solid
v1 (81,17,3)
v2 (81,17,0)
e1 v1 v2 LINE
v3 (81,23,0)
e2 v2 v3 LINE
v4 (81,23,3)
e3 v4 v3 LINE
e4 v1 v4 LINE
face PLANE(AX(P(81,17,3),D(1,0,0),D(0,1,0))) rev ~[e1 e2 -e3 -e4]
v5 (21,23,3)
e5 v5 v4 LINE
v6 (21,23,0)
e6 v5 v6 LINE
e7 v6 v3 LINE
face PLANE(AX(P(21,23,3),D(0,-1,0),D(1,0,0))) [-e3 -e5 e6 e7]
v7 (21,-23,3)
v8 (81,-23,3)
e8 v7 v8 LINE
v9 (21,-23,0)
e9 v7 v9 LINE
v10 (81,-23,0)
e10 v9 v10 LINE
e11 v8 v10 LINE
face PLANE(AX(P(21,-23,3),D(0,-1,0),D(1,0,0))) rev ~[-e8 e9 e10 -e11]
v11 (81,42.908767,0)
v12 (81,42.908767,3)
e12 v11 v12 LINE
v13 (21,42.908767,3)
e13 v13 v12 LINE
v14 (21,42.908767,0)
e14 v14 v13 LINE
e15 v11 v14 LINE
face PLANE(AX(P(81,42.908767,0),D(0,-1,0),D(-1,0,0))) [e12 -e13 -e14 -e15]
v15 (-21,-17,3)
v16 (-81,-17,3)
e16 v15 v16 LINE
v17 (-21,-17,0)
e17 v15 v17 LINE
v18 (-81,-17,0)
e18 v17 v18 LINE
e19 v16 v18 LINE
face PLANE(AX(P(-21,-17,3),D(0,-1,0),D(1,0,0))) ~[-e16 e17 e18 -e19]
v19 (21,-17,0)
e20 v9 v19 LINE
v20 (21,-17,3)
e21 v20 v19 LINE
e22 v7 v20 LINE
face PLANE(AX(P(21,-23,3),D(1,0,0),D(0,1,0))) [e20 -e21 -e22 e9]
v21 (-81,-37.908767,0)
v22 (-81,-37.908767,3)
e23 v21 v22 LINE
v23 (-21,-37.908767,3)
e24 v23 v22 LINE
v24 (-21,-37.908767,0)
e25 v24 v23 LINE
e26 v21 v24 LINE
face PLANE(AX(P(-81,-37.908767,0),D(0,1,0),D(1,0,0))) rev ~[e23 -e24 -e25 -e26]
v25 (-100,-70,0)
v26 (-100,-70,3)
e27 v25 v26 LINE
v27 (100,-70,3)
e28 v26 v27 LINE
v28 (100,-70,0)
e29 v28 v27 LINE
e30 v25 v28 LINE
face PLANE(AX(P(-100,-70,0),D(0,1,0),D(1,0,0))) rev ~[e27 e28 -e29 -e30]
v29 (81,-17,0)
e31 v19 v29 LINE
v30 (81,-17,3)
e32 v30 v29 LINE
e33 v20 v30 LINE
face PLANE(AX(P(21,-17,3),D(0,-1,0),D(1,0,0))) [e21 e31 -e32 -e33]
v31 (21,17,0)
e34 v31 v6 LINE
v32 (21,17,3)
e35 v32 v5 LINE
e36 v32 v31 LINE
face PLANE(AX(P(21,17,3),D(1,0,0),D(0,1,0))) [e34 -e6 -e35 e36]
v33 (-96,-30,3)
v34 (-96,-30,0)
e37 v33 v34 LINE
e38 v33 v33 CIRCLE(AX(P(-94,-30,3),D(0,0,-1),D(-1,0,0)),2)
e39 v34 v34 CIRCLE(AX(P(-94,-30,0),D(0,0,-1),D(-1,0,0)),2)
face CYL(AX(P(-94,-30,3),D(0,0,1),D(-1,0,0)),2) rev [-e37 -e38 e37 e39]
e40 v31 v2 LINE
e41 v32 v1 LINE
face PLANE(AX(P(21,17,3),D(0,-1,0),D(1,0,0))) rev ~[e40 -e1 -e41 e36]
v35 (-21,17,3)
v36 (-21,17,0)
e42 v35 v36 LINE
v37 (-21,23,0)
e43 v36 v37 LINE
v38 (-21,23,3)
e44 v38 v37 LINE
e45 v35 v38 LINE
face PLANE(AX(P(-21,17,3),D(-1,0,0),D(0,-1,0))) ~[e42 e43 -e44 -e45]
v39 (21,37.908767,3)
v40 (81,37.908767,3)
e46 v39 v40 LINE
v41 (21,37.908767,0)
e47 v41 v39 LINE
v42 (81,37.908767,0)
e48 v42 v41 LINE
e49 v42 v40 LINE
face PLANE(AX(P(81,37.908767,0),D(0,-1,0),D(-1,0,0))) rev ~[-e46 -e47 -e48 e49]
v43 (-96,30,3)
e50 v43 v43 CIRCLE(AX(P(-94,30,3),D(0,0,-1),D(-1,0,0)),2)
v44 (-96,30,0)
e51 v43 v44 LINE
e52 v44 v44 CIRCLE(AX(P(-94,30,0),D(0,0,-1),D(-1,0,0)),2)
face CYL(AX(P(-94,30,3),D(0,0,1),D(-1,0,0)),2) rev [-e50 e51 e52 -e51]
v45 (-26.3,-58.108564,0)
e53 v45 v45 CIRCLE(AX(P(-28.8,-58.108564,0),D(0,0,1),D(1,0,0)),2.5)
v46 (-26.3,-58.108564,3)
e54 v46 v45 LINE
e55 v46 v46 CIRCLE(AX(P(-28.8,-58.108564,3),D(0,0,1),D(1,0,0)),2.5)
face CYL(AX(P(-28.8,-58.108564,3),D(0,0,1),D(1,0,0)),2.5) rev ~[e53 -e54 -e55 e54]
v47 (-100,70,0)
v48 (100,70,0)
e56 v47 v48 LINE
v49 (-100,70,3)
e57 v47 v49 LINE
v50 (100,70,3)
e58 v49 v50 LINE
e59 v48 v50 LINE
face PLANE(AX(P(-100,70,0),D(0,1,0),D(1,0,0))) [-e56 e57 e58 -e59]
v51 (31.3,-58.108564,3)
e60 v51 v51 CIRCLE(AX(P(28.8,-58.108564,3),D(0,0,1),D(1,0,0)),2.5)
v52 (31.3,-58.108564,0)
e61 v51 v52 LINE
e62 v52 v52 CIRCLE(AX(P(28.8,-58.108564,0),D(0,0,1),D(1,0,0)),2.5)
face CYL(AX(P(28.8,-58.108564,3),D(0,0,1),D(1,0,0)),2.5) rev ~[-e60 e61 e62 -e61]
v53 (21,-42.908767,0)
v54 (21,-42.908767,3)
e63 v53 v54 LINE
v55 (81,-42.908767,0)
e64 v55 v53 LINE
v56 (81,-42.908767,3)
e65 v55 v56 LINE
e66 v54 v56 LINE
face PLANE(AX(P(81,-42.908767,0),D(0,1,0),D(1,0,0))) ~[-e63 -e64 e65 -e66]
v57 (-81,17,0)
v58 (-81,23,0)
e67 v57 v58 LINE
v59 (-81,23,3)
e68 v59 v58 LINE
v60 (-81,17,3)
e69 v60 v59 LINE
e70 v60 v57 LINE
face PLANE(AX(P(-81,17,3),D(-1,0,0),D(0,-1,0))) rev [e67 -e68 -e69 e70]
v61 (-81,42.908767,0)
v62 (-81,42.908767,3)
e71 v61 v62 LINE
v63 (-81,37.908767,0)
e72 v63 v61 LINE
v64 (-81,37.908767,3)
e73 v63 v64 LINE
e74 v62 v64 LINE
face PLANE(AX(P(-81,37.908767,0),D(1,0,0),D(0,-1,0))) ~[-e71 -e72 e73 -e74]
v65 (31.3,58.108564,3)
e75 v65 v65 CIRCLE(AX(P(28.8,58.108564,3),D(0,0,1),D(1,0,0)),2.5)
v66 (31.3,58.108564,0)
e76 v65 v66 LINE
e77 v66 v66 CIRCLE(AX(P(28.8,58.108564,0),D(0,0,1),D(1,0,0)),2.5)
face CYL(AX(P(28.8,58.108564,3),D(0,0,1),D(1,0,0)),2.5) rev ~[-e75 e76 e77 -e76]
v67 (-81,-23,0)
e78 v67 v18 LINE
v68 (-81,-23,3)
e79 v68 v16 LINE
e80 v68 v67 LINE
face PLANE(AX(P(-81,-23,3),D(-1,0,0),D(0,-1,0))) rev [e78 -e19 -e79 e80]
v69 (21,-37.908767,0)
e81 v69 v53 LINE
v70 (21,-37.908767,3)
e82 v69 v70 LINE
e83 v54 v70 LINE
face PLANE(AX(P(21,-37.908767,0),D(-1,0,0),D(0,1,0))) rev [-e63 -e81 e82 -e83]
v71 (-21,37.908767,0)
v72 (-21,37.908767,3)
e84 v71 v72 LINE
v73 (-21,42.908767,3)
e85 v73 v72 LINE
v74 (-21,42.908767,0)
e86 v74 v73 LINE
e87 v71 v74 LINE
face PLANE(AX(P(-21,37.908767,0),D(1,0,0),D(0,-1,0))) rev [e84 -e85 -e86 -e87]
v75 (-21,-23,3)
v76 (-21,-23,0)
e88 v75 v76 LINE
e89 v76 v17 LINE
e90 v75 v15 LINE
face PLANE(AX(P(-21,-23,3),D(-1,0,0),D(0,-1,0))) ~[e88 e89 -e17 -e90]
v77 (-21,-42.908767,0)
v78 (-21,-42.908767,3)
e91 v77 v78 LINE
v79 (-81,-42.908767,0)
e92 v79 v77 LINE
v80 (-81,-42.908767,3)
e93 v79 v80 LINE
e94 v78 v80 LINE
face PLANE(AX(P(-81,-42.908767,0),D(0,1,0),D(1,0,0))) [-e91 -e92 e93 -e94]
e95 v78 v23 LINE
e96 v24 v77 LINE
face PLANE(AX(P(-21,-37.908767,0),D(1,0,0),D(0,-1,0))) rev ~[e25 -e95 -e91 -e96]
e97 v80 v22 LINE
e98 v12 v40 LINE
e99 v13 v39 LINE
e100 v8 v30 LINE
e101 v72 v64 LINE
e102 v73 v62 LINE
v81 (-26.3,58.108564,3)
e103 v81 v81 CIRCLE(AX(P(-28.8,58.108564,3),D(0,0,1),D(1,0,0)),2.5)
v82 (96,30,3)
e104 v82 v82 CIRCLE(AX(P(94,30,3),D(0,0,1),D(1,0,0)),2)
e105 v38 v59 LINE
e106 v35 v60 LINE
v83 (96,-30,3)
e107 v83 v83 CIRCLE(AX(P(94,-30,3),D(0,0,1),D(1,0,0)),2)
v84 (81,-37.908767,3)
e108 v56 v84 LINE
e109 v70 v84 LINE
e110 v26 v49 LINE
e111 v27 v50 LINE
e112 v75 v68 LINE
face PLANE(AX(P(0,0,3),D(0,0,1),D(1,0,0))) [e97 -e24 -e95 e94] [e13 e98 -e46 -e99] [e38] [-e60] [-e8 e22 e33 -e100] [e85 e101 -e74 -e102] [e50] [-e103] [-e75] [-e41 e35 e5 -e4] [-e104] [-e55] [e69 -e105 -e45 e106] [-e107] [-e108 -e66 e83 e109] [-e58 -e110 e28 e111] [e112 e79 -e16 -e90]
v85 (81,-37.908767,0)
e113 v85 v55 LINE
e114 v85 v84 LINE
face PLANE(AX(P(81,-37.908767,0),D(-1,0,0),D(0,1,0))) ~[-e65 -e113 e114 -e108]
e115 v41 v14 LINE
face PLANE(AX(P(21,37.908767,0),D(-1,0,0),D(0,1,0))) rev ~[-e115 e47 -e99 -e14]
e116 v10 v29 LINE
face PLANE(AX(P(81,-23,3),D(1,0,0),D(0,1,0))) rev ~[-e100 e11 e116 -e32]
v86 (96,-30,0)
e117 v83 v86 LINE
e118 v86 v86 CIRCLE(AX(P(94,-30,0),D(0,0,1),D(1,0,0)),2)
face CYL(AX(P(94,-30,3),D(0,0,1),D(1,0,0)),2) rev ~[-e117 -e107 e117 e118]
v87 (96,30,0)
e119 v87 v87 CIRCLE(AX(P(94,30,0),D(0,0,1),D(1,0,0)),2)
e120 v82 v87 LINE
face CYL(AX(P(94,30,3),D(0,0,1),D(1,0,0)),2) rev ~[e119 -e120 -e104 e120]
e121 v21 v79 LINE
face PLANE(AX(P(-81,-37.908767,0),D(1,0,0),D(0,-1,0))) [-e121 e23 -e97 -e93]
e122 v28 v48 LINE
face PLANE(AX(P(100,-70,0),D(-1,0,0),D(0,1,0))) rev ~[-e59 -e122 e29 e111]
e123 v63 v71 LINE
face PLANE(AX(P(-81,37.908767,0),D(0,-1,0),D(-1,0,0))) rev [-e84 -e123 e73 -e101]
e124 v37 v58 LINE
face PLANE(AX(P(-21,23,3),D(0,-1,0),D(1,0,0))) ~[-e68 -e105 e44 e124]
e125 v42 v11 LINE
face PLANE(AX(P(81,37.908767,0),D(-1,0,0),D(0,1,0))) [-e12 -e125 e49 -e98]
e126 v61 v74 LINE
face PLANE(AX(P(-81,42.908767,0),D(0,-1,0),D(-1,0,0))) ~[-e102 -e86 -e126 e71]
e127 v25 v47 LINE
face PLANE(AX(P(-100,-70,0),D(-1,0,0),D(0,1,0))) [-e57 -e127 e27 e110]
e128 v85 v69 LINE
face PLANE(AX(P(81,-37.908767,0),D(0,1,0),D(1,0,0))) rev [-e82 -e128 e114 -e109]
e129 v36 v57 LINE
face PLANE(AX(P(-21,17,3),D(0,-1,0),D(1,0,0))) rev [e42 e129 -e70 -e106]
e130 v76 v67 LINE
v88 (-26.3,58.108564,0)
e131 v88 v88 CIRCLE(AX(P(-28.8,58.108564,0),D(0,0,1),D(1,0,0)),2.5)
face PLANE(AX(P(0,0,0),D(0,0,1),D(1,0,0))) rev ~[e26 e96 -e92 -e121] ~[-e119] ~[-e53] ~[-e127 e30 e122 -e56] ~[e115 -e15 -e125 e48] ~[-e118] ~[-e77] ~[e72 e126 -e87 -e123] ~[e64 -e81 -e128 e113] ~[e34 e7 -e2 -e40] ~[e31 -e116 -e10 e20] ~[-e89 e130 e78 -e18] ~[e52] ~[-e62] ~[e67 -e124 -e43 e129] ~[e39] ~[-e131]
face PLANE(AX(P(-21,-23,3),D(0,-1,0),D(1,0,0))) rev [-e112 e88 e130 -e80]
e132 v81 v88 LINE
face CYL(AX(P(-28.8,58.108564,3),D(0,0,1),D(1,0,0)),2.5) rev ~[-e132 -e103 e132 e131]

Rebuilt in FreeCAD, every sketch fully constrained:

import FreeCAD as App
import Part
import Sketcher
Q = App.Units.Quantity

doc = App.newDocument("Part")
body = doc.addObject("PartDesign::Body", "Body")

sketch1 = body.newObject("Sketcher::SketchObject", "Sketch")
sketch1.AttachmentSupport = (doc.getObject("XY_Plane"), [""])
sketch1.MapMode = "FlatFace"
sketch1.addGeometry([
    Part.LineSegment(App.Vector(-100, 70, 0), App.Vector(-100, -70, 0)),
    Part.LineSegment(App.Vector(-100, -70, 0), App.Vector(100, -70, 0)),
    Part.LineSegment(App.Vector(100, -70, 0), App.Vector(100, 70, 0)),
    Part.LineSegment(App.Vector(100, 70, 0), App.Vector(-100, 70, 0)),
], False)
sketch1.addConstraint([
    Sketcher.Constraint("Coincident", 0, 2, 1, 1),
    Sketcher.Constraint("Coincident", 1, 2, 2, 1),
    Sketcher.Constraint("Coincident", 2, 2, 3, 1),
    Sketcher.Constraint("Coincident", 3, 2, 0, 1),
    Sketcher.Constraint("Vertical", 0),
    Sketcher.Constraint("Horizontal", 1),
    Sketcher.Constraint("Vertical", 2),
    Sketcher.Constraint("Horizontal", 3),
    Sketcher.Constraint("Symmetric", 0, 2, 2, 2, -1, 1),
    Sketcher.Constraint("DistanceX", 1, 1, 1, 2, Q("200 mm")),
    Sketcher.Constraint("DistanceY", 0, 2, 0, 1, Q("140 mm")),
])
pad1 = body.newObject("PartDesign::Pad", "Pad")
pad1.Profile = sketch1
pad1.Length = 3

sketch2 = body.newObject("Sketcher::SketchObject", "Sketch001")
sketch2.AttachmentSupport = (doc.getObject("XY_Plane"), [""])
sketch2.MapMode = "FlatFace"
sketch2.AttachmentOffset = App.Placement(App.Vector(0, 0, 3), App.Rotation())
sketch2.addGeometry([
    Part.Circle(App.Vector(94, 30, 0), App.Vector(0, 0, 1), 2),
    Part.Circle(App.Vector(94, -30, 0), App.Vector(0, 0, 1), 2),
], False)
sketch2.addConstraint([
    Sketcher.Constraint("Equal", 0, 1),
    Sketcher.Constraint("Symmetric", 0, 3, 1, 3, -1),
    Sketcher.Constraint("Diameter", 0, Q("4 mm")),
    Sketcher.Constraint("DistanceX", -1, 1, 0, 3, Q("94 mm")),
    Sketcher.Constraint("DistanceY", -1, 1, 0, 3, Q("30 mm")),
])
pocket1 = body.newObject("PartDesign::Pocket", "Pocket")
pocket1.Profile = sketch2
pocket1.Length = 3

sketch3 = body.newObject("Sketcher::SketchObject", "Sketch002")
sketch3.AttachmentSupport = (doc.getObject("XY_Plane"), [""])
sketch3.MapMode = "FlatFace"
sketch3.AttachmentOffset = App.Placement(App.Vector(0, 0, 3), App.Rotation())
sketch3.addGeometry([
    Part.LineSegment(App.Vector(21, 23, 0), App.Vector(21, 17, 0)),
    Part.LineSegment(App.Vector(21, 17, 0), App.Vector(81, 17, 0)),
    Part.LineSegment(App.Vector(81, 17, 0), App.Vector(81, 23, 0)),
    Part.LineSegment(App.Vector(81, 23, 0), App.Vector(21, 23, 0)),
    Part.LineSegment(App.Vector(21, -17, 0), App.Vector(21, -23, 0)),
    Part.LineSegment(App.Vector(21, -23, 0), App.Vector(81, -23, 0)),
    Part.LineSegment(App.Vector(81, -23, 0), App.Vector(81, -17, 0)),
    Part.LineSegment(App.Vector(81, -17, 0), App.Vector(21, -17, 0)),
], False)
sketch3.addConstraint([
    Sketcher.Constraint("Coincident", 0, 2, 1, 1),
    Sketcher.Constraint("Coincident", 1, 2, 2, 1),
    Sketcher.Constraint("Coincident", 2, 2, 3, 1),
    Sketcher.Constraint("Coincident", 3, 2, 0, 1),
    Sketcher.Constraint("Coincident", 4, 2, 5, 1),
    Sketcher.Constraint("Coincident", 5, 2, 6, 1),
    Sketcher.Constraint("Coincident", 6, 2, 7, 1),
    Sketcher.Constraint("Coincident", 7, 2, 4, 1),
    Sketcher.Constraint("Vertical", 0),
    Sketcher.Constraint("Horizontal", 1),
    Sketcher.Constraint("Vertical", 2),
    Sketcher.Constraint("Horizontal", 3),
    Sketcher.Constraint("Vertical", 4),
    Sketcher.Constraint("Horizontal", 5),
    Sketcher.Constraint("Vertical", 6),
    Sketcher.Constraint("Horizontal", 7),
    Sketcher.Constraint("Symmetric", 3, 2, 4, 2, -1),
    Sketcher.Constraint("Symmetric", 1, 2, 6, 2, -1),
    Sketcher.Constraint("DistanceX", 1, 1, 1, 2, Q("60 mm")),
    Sketcher.Constraint("DistanceY", 0, 2, 0, 1, Q("6 mm")),
    Sketcher.Constraint("DistanceX", -1, 1, 0, 2, Q("21 mm")),
    Sketcher.Constraint("DistanceY", -1, 1, 0, 2, Q("17 mm")),
])
pocket2 = body.newObject("PartDesign::Pocket", "Pocket001")
pocket2.Profile = sketch3
pocket2.Length = 10

sketch4 = body.newObject("Sketcher::SketchObject", "Sketch003")
sketch4.AttachmentSupport = (doc.getObject("XY_Plane"), [""])
sketch4.MapMode = "FlatFace"
sketch4.addGeometry([
    Part.LineSegment(App.Vector(81, 43, 0), App.Vector(81, 38, 0)),
    Part.LineSegment(App.Vector(81, 38, 0), App.Vector(21, 38, 0)),
    Part.LineSegment(App.Vector(21, 38, 0), App.Vector(21, 43, 0)),
    Part.LineSegment(App.Vector(21, 43, 0), App.Vector(81, 43, 0)),
], False)
sketch4.addConstraint([
    Sketcher.Constraint("Coincident", 0, 2, 1, 1),
    Sketcher.Constraint("Coincident", 1, 2, 2, 1),
    Sketcher.Constraint("Coincident", 2, 2, 3, 1),
    Sketcher.Constraint("Coincident", 3, 2, 0, 1),
    Sketcher.Constraint("Vertical", 0),
    Sketcher.Constraint("Horizontal", 1),
    Sketcher.Constraint("Vertical", 2),
    Sketcher.Constraint("Horizontal", 3),
    Sketcher.Constraint("DistanceX", 1, 2, 1, 1, Q("60 mm")),
    Sketcher.Constraint("DistanceY", 0, 2, 0, 1, Q("5 mm")),
    Sketcher.Constraint("DistanceX", -1, 1, 0, 2, Q("81 mm")),
    Sketcher.Constraint("DistanceY", -1, 1, 0, 2, Q("37.908767 mm")),
])
pocket3 = body.newObject("PartDesign::Pocket", "Pocket002")
pocket3.Profile = sketch4
pocket3.Length = 6
pocket3.Reversed = True
doc.recompute()

mirrored = body.newObject("PartDesign::Mirrored", "Mirrored")
mirrored.Originals = [pocket3]
mirrored.MirrorPlane = (doc.getObject("XZ_Plane"), [""])
body.Tip = mirrored
doc.recompute()

mirrored2 = body.newObject("PartDesign::Mirrored", "Mirrored001")
mirrored2.Originals = [pocket1, pocket2, pocket3]
mirrored2.MirrorPlane = (doc.getObject("YZ_Plane"), [""])
body.Tip = mirrored2

sketch5 = body.newObject("Sketcher::SketchObject", "Sketch004")
sketch5.AttachmentSupport = (doc.getObject("XY_Plane"), [""])
sketch5.MapMode = "FlatFace"
sketch5.addGeometry([
    Part.LineSegment(App.Vector(-81, -43, 0), App.Vector(-81, -38, 0)),
    Part.LineSegment(App.Vector(-81, -38, 0), App.Vector(-21, -38, 0)),
    Part.LineSegment(App.Vector(-21, -38, 0), App.Vector(-21, -43, 0)),
    Part.LineSegment(App.Vector(-21, -43, 0), App.Vector(-81, -43, 0)),
], False)
sketch5.addConstraint([
    Sketcher.Constraint("Coincident", 0, 2, 1, 1),
    Sketcher.Constraint("Coincident", 1, 2, 2, 1),
    Sketcher.Constraint("Coincident", 2, 2, 3, 1),
    Sketcher.Constraint("Coincident", 3, 2, 0, 1),
    Sketcher.Constraint("Vertical", 0),
    Sketcher.Constraint("Horizontal", 1),
    Sketcher.Constraint("Vertical", 2),
    Sketcher.Constraint("Horizontal", 3),
    Sketcher.Constraint("DistanceX", 1, 1, 1, 2, Q("60 mm")),
    Sketcher.Constraint("DistanceY", 0, 1, 0, 2, Q("5 mm")),
    Sketcher.Constraint("DistanceX", 0, 2, -1, 1, Q("81 mm")),
    Sketcher.Constraint("DistanceY", 0, 2, -1, 1, Q("37.908767 mm")),
])
pocket4 = body.newObject("PartDesign::Pocket", "Pocket003")
pocket4.Profile = sketch5
pocket4.Length = 6
pocket4.Reversed = True

sketch6 = body.newObject("Sketcher::SketchObject", "Sketch005")
sketch6.AttachmentSupport = (doc.getObject("XY_Plane"), [""])
sketch6.MapMode = "FlatFace"
sketch6.AttachmentOffset = App.Placement(App.Vector(0, 0, 3), App.Rotation())
sketch6.addGeometry([
    Part.Circle(App.Vector(-28.8, 58.1, 0), App.Vector(0, 0, 1), 2.5),
    Part.Circle(App.Vector(-28.8, -58.1, 0), App.Vector(0, 0, 1), 2.5),
    Part.Circle(App.Vector(28.8, -58.1, 0), App.Vector(0, 0, 1), 2.5),
    Part.Circle(App.Vector(28.8, 58.1, 0), App.Vector(0, 0, 1), 2.5),
], False)
sketch6.addConstraint([
    Sketcher.Constraint("Equal", 0, 1),
    Sketcher.Constraint("Equal", 1, 2),
    Sketcher.Constraint("Equal", 2, 3),
    Sketcher.Constraint("Symmetric", 0, 3, 2, 3, -1, 1),
    Sketcher.Constraint("Symmetric", 1, 3, 3, 3, -1, 1),
    Sketcher.Constraint("Symmetric", 1, 3, 2, 3, -2),
    Sketcher.Constraint("Diameter", 0, Q("5 mm")),
    Sketcher.Constraint("DistanceX", 0, 3, -1, 1, Q("28.8 mm")),
    Sketcher.Constraint("DistanceY", -1, 1, 0, 3, Q("58.108564 mm")),
])
pocket5 = body.newObject("PartDesign::Pocket", "Pocket004")
pocket5.Profile = sketch6
pocket5.Length = 5

doc.recompute()
